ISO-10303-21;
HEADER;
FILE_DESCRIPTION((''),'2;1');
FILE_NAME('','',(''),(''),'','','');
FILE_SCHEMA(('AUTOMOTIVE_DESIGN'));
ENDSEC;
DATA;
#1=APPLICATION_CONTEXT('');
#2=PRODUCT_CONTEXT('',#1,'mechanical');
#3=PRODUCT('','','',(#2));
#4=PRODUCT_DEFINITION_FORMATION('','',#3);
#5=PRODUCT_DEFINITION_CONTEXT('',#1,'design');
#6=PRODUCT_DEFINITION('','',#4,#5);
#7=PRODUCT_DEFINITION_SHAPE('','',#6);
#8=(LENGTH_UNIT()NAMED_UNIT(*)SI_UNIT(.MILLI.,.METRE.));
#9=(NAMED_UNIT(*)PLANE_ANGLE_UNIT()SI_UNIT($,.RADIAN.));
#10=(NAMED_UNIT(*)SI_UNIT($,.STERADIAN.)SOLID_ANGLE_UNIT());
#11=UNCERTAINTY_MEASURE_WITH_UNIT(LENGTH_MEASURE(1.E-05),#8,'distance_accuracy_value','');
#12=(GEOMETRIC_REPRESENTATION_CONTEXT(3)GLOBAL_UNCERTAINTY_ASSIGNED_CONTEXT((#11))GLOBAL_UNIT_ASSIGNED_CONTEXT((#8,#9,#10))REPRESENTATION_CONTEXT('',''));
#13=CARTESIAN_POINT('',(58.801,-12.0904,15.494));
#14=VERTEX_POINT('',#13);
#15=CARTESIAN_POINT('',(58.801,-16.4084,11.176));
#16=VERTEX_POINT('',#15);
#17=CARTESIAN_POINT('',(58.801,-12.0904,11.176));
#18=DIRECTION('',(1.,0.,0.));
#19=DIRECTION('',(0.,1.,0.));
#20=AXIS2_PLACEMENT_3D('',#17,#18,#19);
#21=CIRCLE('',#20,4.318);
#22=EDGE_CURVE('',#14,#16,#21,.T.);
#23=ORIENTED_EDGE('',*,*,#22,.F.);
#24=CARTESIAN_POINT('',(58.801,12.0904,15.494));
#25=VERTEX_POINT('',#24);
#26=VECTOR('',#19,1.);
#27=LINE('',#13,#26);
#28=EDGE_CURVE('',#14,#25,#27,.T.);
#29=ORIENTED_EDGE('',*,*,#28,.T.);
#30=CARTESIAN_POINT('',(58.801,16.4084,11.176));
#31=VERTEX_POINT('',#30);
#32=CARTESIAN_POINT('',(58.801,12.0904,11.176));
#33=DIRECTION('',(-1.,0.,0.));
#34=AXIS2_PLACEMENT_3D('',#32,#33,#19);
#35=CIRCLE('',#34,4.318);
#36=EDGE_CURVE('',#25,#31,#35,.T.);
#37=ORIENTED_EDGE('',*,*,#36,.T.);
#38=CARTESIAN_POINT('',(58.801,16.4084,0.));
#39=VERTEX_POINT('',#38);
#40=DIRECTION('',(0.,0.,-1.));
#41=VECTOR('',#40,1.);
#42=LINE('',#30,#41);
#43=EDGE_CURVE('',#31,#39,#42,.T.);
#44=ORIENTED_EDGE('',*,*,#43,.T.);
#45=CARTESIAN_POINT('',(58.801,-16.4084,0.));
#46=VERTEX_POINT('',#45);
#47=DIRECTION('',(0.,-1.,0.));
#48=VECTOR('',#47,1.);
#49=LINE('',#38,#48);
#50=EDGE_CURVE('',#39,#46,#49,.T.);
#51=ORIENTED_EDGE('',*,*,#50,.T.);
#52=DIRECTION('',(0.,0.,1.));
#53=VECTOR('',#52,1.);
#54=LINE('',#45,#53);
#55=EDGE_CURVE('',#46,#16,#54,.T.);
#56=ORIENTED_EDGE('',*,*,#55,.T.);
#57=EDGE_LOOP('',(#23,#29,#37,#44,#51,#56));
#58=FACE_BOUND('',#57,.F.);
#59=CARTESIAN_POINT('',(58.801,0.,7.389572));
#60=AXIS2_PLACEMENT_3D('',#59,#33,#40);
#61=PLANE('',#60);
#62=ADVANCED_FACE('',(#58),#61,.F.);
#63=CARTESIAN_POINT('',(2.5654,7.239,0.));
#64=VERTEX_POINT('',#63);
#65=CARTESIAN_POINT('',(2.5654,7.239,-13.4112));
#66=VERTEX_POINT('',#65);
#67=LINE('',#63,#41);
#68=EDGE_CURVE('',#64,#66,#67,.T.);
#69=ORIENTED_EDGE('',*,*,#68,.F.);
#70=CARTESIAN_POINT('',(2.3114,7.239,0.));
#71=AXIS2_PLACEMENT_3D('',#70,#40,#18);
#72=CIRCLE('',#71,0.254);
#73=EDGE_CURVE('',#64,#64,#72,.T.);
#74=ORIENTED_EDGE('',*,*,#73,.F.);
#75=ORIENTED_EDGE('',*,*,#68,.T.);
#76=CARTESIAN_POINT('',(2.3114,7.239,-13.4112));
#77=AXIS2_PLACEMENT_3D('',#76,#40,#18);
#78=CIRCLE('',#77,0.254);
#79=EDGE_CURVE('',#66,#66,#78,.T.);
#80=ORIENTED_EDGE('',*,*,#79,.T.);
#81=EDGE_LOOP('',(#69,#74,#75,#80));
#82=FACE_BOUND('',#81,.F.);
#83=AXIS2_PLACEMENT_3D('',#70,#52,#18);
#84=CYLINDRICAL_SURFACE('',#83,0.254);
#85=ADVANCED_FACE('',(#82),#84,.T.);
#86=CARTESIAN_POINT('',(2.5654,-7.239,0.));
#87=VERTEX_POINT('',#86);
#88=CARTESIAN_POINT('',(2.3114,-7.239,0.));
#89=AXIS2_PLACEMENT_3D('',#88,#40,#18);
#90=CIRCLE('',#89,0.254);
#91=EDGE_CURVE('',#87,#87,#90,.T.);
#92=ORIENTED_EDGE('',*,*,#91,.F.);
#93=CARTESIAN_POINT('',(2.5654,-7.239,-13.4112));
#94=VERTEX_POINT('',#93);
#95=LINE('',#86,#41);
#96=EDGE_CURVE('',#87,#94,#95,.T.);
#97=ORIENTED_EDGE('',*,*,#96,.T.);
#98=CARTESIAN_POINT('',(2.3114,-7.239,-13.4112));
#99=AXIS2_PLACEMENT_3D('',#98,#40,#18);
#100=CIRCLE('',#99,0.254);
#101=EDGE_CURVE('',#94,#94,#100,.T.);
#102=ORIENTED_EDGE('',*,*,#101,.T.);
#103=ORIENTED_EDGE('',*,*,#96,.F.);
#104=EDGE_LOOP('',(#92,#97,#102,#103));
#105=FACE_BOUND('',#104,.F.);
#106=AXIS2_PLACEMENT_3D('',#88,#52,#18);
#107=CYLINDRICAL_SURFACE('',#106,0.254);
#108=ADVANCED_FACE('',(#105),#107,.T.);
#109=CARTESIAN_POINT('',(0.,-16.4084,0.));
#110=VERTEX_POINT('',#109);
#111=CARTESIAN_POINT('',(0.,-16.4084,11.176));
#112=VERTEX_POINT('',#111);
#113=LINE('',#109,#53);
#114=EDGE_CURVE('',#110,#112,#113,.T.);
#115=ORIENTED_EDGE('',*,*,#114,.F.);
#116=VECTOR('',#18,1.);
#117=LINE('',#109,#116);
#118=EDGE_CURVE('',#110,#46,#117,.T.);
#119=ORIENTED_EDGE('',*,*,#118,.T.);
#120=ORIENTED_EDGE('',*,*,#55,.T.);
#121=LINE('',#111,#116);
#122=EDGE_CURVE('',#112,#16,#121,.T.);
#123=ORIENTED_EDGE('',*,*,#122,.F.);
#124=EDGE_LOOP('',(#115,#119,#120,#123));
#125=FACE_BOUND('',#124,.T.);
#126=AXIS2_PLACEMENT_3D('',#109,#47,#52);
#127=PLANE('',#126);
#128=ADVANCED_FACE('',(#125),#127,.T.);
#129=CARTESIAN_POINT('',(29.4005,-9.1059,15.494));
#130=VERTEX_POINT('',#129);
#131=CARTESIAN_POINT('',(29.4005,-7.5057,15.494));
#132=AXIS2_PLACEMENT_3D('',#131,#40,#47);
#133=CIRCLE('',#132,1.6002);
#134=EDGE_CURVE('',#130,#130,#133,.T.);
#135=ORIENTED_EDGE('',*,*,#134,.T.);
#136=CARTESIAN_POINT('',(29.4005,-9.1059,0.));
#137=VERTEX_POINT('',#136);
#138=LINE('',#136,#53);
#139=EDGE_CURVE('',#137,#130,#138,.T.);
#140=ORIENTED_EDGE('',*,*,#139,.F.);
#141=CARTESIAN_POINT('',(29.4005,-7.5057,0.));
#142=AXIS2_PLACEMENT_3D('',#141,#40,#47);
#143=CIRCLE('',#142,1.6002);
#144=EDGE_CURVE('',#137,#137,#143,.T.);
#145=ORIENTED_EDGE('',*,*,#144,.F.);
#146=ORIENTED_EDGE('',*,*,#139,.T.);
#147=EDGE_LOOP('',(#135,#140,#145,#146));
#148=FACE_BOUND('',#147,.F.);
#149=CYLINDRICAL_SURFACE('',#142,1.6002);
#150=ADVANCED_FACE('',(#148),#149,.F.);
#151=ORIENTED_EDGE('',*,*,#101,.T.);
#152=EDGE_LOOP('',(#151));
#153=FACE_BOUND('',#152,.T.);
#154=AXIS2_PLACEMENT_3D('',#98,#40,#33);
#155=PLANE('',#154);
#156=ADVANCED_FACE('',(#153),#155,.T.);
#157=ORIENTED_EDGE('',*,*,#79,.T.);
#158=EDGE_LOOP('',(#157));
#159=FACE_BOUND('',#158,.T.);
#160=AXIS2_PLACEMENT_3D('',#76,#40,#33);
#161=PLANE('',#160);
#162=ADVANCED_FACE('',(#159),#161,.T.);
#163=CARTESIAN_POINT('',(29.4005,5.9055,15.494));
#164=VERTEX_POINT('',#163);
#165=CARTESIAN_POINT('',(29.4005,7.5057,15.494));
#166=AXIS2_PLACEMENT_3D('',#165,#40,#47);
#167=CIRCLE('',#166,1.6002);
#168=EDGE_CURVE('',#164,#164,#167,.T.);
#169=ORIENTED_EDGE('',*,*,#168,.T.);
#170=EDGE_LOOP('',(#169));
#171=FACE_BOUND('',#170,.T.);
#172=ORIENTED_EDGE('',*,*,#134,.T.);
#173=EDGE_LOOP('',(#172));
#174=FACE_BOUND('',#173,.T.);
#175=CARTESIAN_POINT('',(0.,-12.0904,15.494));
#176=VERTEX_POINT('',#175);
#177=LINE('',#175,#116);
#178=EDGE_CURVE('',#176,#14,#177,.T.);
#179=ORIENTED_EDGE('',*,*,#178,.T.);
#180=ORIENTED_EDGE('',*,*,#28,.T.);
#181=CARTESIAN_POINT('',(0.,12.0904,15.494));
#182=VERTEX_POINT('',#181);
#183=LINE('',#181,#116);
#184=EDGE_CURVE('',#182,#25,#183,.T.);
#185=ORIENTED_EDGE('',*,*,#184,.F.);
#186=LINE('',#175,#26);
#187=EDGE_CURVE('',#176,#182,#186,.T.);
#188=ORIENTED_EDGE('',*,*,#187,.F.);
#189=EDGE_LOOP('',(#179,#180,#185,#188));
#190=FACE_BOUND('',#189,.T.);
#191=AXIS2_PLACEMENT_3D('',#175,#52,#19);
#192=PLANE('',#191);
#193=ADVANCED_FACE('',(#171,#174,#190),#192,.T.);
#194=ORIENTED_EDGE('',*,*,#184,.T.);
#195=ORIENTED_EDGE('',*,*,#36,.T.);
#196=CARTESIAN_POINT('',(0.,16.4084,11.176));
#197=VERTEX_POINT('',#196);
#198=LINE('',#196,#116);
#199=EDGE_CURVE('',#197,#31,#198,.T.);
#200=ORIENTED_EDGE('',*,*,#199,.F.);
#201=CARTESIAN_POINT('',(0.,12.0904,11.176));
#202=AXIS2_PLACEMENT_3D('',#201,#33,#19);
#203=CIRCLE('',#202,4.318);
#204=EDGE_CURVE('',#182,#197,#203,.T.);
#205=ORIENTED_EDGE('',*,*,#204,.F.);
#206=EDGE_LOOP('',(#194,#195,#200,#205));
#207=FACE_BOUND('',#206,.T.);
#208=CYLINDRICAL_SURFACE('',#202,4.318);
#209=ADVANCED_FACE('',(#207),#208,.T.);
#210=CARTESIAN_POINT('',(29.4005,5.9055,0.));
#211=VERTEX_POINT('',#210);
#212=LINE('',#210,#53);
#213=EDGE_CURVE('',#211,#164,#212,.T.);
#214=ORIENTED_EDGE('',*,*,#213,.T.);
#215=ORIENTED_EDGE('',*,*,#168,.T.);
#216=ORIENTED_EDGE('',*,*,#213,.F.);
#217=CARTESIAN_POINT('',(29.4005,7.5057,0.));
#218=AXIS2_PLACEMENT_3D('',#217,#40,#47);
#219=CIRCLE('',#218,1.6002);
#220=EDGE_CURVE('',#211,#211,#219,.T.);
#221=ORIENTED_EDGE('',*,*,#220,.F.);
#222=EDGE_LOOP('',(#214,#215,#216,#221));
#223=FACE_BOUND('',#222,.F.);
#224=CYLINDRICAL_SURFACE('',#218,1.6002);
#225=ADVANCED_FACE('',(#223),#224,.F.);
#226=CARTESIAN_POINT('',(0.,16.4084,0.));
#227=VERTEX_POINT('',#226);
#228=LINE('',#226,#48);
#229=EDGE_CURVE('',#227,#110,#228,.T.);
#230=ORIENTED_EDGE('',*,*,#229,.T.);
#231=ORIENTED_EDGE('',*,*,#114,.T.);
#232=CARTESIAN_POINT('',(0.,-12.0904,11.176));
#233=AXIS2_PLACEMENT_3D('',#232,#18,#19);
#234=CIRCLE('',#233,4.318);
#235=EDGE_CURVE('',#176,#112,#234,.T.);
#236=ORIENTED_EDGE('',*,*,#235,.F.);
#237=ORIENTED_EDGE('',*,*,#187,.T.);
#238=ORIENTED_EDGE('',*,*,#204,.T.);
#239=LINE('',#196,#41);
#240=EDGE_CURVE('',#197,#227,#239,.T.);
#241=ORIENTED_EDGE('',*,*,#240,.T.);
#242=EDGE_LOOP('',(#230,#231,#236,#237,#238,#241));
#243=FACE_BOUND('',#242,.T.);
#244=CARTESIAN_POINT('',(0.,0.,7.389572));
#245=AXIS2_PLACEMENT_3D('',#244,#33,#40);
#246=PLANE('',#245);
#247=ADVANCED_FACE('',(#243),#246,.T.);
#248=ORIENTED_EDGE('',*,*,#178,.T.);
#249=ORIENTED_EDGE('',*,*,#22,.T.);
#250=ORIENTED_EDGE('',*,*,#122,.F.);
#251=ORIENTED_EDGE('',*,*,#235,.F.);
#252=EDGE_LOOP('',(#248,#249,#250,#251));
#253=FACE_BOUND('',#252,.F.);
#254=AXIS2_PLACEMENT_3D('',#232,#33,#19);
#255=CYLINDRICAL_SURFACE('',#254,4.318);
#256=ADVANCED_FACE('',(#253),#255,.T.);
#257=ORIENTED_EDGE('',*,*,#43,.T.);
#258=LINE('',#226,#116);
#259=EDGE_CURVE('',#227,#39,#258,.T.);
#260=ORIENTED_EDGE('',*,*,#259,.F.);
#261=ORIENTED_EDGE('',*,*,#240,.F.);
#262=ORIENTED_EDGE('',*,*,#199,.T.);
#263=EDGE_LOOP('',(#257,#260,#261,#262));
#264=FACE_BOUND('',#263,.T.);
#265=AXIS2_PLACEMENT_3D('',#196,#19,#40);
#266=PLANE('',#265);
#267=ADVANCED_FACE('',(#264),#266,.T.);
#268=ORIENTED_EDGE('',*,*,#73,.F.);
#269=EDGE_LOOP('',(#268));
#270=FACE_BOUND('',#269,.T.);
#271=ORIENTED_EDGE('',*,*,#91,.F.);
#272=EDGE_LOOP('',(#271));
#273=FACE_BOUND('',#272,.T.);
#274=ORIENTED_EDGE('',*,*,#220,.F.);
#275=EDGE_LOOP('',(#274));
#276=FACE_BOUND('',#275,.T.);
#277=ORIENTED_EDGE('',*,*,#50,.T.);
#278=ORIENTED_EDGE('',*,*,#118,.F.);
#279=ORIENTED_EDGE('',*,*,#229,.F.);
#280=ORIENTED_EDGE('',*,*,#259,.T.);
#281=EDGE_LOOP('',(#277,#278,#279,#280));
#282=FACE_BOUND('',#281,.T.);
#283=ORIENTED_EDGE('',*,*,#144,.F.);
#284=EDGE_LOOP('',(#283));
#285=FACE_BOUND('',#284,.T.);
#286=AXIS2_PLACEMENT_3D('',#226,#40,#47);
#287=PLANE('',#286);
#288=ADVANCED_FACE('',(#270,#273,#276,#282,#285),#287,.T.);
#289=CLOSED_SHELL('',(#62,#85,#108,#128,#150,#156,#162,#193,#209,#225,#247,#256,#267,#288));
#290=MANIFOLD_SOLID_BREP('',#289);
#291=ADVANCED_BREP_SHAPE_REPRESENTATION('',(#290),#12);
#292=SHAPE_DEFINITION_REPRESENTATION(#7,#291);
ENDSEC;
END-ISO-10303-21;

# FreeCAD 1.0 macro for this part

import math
import FreeCAD as App
import Part
import Sketcher
Q = App.Units.Quantity

doc = App.newDocument("Part")
body = doc.addObject("PartDesign::Body", "Body")

# Sketch on YZ plane
sketch1 = body.newObject("Sketcher::SketchObject", "Sketch")
sketch1.AttachmentSupport = (doc.getObject("YZ_Plane"), [""])
sketch1.MapMode = "FlatFace"
sketch1.addGeometry(Part.LineSegment(App.Vector(-16.4, 11.2, 0), App.Vector(-16.4, 0, 0)), False)
sketch1.addGeometry(Part.LineSegment(App.Vector(-16.4, 0, 0), App.Vector(16.4, 0, 0)), False)
sketch1.addGeometry(Part.LineSegment(App.Vector(16.4, 0, 0), App.Vector(16.4, 11.2, 0)), False)
sketch1.addGeometry(Part.ArcOfCircle(Part.Circle(App.Vector(12.1, 11.2, 0), App.Vector(0, 0, 1), 4.3), math.radians(0), math.radians(90)), False)
sketch1.addGeometry(Part.LineSegment(App.Vector(12.1, 15.5, 0), App.Vector(-12.1, 15.5, 0)), False)
sketch1.addGeometry(Part.ArcOfCircle(Part.Circle(App.Vector(-12.1, 11.2, 0), App.Vector(0, 0, 1), 4.3), math.radians(90), math.radians(180)), False)
sketch1.addConstraint(Sketcher.Constraint("Coincident", 0, 2, 1, 1))
sketch1.addConstraint(Sketcher.Constraint("Coincident", 1, 2, 2, 1))
sketch1.addConstraint(Sketcher.Constraint("Tangent", 2, 2, 3, 1))
sketch1.addConstraint(Sketcher.Constraint("Tangent", 3, 2, 4, 1))
sketch1.addConstraint(Sketcher.Constraint("Tangent", 4, 2, 5, 1))
sketch1.addConstraint(Sketcher.Constraint("Tangent", 5, 2, 0, 1))
sketch1.addConstraint(Sketcher.Constraint("Vertical", 0))
sketch1.addConstraint(Sketcher.Constraint("Horizontal", 1))
sketch1.addConstraint(Sketcher.Constraint("Vertical", 2))
sketch1.addConstraint(Sketcher.Constraint("Horizontal", 4))
sketch1.addConstraint(Sketcher.Constraint("Equal", 3, 5))
sketch1.addConstraint(Sketcher.Constraint("Symmetric", 0, 2, 1, 2, -1, 1))
sketch1.addConstraint(Sketcher.Constraint("Radius", 3, Q("0.17 in")))
sketch1.addConstraint(Sketcher.Constraint("DistanceY", 0, 2, 0, 1, Q("0.44 in")))
sketch1.addConstraint(Sketcher.Constraint("DistanceX", 1, 1, 1, 2, Q("1.292 in")))
pad1 = body.newObject("PartDesign::Pad", "Pad")
pad1.Profile = sketch1
pad1.Length = Q("2.315 in")

# Sketch on XY plane
sketch2 = body.newObject("Sketcher::SketchObject", "Sketch001")
sketch2.AttachmentSupport = (doc.getObject("XY_Plane"), [""])
sketch2.MapMode = "FlatFace"
sketch2.addGeometry(Part.Circle(App.Vector(2.31, 7.24, 0), App.Vector(0, 0, 1), 0.25), False)
sketch2.addGeometry(Part.Circle(App.Vector(2.31, -7.24, 0), App.Vector(0, 0, 1), 0.25), False)
sketch2.addConstraint(Sketcher.Constraint("Equal", 0, 1))
sketch2.addConstraint(Sketcher.Constraint("Symmetric", 0, 3, 1, 3, -1))
sketch2.addConstraint(Sketcher.Constraint("Diameter", 0, Q("0.02 in")))
sketch2.addConstraint(Sketcher.Constraint("DistanceY", 1, 3, 0, 3, Q("0.57 in")))
sketch2.addConstraint(Sketcher.Constraint("DistanceX", -1, 1, 0, 3, Q("0.091 in")))
pad2 = body.newObject("PartDesign::Pad", "Pad001")
pad2.Profile = sketch2
pad2.Length = Q("0.528 in")
pad2.Reversed = True

# Sketch on XY plane
sketch3 = body.newObject("Sketcher::SketchObject", "Sketch002")
sketch3.AttachmentSupport = (doc.getObject("XY_Plane"), [""])
sketch3.MapMode = "FlatFace"
sketch3.addGeometry(Part.Circle(App.Vector(29.4, 7.5, 0), App.Vector(0, 0, 1), 1.6), False)
sketch3.addGeometry(Part.Circle(App.Vector(29.4, -7.5, 0), App.Vector(0, 0, 1), 1.6), False)
sketch3.addConstraint(Sketcher.Constraint("Equal", 0, 1))
sketch3.addConstraint(Sketcher.Constraint("Symmetric", 0, 3, 1, 3, -1))
sketch3.addConstraint(Sketcher.Constraint("Diameter", 0, Q("0.126 in")))
sketch3.addConstraint(Sketcher.Constraint("DistanceY", 1, 3, 0, 3, Q("0.591 in")))
sketch3.addConstraint(Sketcher.Constraint("DistanceX", -1, 1, 0, 3, Q("1.1575 in")))
pocket1 = body.newObject("PartDesign::Pocket", "Pocket")
pocket1.Profile = sketch3
pocket1.Type = "ThroughAll"
pocket1.Reversed = True

doc.recompute()
